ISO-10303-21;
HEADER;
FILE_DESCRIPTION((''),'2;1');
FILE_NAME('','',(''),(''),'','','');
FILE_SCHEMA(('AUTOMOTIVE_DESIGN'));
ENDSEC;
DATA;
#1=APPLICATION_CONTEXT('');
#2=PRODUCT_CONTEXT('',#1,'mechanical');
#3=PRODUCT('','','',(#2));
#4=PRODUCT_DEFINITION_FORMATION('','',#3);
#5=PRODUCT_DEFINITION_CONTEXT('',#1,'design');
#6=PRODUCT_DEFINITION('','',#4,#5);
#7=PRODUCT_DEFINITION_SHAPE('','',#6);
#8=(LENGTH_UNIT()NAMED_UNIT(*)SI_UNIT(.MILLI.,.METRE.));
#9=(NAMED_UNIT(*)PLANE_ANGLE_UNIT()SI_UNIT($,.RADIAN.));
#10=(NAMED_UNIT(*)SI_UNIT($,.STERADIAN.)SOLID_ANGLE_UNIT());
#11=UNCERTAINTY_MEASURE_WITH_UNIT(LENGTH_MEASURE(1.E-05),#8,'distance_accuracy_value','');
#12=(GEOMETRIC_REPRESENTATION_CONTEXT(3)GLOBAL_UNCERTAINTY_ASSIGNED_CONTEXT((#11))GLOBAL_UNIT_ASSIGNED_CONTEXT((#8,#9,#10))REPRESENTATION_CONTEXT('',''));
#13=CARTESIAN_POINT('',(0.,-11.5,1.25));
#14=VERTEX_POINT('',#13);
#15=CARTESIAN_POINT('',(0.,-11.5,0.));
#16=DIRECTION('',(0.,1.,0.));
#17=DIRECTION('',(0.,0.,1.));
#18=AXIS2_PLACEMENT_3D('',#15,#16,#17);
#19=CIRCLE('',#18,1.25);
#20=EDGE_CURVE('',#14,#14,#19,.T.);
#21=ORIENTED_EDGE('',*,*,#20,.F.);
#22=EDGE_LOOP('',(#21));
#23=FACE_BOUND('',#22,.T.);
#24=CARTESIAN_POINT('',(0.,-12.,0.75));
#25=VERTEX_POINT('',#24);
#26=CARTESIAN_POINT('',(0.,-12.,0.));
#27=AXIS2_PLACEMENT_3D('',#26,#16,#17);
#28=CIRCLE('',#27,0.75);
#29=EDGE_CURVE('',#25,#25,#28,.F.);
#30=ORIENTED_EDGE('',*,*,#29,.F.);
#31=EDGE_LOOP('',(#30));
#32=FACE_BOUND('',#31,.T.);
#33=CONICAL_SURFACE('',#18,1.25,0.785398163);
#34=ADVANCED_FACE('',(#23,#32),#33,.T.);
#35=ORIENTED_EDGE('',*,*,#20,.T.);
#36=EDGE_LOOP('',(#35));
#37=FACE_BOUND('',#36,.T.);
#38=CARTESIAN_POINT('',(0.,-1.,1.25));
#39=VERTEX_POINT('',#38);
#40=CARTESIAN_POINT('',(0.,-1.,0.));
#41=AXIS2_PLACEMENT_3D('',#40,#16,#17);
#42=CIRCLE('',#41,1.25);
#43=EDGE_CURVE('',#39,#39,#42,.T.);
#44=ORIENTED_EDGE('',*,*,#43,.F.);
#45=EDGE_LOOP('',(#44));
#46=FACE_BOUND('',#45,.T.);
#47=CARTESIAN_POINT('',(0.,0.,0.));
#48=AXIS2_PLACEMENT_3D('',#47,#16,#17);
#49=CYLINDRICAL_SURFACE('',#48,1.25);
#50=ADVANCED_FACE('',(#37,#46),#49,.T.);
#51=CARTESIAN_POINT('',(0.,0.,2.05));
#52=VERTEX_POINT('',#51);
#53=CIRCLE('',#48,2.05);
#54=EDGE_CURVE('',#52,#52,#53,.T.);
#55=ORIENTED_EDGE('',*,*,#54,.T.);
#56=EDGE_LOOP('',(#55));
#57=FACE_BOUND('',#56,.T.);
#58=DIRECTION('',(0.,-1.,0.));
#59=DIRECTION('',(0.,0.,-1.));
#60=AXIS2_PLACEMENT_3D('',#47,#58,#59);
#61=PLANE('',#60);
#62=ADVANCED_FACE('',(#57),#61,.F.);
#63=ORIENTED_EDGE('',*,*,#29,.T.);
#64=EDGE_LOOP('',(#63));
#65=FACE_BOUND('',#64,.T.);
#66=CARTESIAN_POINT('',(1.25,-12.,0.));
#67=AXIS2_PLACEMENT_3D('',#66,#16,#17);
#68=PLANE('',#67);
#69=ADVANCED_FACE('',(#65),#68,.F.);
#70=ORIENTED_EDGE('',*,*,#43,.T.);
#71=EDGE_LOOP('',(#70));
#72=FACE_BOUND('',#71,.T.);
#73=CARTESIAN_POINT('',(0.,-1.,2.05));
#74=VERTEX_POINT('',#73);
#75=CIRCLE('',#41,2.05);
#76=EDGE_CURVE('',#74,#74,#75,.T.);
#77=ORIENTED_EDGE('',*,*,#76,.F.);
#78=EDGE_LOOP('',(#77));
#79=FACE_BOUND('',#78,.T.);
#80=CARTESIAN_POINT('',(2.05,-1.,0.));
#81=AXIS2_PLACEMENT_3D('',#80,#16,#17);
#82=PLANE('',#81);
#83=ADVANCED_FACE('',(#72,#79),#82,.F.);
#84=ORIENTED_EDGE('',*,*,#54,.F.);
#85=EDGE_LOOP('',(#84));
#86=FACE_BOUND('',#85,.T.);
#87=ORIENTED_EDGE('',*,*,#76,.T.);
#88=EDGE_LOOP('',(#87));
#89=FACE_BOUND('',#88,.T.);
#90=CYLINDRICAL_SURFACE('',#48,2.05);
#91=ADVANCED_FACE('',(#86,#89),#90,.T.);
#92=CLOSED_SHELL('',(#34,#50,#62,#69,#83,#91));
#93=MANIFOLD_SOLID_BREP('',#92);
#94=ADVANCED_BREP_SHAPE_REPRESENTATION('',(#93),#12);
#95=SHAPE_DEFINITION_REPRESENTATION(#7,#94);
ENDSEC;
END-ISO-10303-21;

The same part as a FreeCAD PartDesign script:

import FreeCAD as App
import Part
import Sketcher
Q = App.Units.Quantity


def edges_at(feature, points):
    """Names of the edges that pass closest to the given points."""
    edges = feature.Shape.Edges
    near = lambda p: min(range(len(edges)), key=lambda i: edges[i].distToShape(Part.Vertex(*p))[0])
    return sorted({f"Edge{near(p) + 1}" for p in points})


def add_polygon(sketch, points):
    """Adds a closed chain of lines whose ends are joined by coincident constraints."""
    first, n = sketch.GeometryCount, len(points)
    for a, b in zip(points, points[1:] + points[:1]):
        sketch.addGeometry(Part.LineSegment(App.Vector(*a, 0), App.Vector(*b, 0)), False)
    for i in range(n):
        sketch.addConstraint(Sketcher.Constraint("Coincident", first + i, 2, first + (i + 1) % n, 1))

doc = App.newDocument("Part")
body = doc.addObject("PartDesign::Body", "Body")

sketch1 = body.newObject("Sketcher::SketchObject", "Sketch")
sketch1.AttachmentSupport = (doc.getObject("XY_Plane"), [""])
sketch1.MapMode = "FlatFace"
add_polygon(sketch1, [(2, 0), (0, 0), (0, -12), (1.2, -12), (1.2, -1), (2, -1)])
sketch1.addConstraint(Sketcher.Constraint("Horizontal", 0))
sketch1.addConstraint(Sketcher.Constraint("Vertical", 1))
sketch1.addConstraint(Sketcher.Constraint("Horizontal", 2))
sketch1.addConstraint(Sketcher.Constraint("Vertical", 3))
sketch1.addConstraint(Sketcher.Constraint("Horizontal", 4))
sketch1.addConstraint(Sketcher.Constraint("Vertical", 5))
sketch1.addConstraint(Sketcher.Constraint("Coincident", 0, 2, -1, 1))
sketch1.addConstraint(Sketcher.Constraint("DistanceY", 1, 2, 1, 1, Q("12 mm")))
sketch1.addConstraint(Sketcher.Constraint("DistanceY", 3, 1, 3, 2, Q("11 mm")))
sketch1.addConstraint(Sketcher.Constraint("DistanceX", 4, 1, 4, 2, Q("0.8 mm")))
sketch1.addConstraint(Sketcher.Constraint("DistanceX", 0, 2, 0, 1, Q("2.05 mm")))
revolution = body.newObject("PartDesign::Revolution", "Revolution")
revolution.Profile = sketch1
revolution.ReferenceAxis = (sketch1, ["V_Axis"])
revolution.Angle = 360
doc.recompute()

chamfer = body.newObject("PartDesign::Chamfer", "Chamfer")
chamfer.Base = (revolution, edges_at(revolution, [(0, -12, -1.25)]))
chamfer.Size = 0.5

doc.recompute()
